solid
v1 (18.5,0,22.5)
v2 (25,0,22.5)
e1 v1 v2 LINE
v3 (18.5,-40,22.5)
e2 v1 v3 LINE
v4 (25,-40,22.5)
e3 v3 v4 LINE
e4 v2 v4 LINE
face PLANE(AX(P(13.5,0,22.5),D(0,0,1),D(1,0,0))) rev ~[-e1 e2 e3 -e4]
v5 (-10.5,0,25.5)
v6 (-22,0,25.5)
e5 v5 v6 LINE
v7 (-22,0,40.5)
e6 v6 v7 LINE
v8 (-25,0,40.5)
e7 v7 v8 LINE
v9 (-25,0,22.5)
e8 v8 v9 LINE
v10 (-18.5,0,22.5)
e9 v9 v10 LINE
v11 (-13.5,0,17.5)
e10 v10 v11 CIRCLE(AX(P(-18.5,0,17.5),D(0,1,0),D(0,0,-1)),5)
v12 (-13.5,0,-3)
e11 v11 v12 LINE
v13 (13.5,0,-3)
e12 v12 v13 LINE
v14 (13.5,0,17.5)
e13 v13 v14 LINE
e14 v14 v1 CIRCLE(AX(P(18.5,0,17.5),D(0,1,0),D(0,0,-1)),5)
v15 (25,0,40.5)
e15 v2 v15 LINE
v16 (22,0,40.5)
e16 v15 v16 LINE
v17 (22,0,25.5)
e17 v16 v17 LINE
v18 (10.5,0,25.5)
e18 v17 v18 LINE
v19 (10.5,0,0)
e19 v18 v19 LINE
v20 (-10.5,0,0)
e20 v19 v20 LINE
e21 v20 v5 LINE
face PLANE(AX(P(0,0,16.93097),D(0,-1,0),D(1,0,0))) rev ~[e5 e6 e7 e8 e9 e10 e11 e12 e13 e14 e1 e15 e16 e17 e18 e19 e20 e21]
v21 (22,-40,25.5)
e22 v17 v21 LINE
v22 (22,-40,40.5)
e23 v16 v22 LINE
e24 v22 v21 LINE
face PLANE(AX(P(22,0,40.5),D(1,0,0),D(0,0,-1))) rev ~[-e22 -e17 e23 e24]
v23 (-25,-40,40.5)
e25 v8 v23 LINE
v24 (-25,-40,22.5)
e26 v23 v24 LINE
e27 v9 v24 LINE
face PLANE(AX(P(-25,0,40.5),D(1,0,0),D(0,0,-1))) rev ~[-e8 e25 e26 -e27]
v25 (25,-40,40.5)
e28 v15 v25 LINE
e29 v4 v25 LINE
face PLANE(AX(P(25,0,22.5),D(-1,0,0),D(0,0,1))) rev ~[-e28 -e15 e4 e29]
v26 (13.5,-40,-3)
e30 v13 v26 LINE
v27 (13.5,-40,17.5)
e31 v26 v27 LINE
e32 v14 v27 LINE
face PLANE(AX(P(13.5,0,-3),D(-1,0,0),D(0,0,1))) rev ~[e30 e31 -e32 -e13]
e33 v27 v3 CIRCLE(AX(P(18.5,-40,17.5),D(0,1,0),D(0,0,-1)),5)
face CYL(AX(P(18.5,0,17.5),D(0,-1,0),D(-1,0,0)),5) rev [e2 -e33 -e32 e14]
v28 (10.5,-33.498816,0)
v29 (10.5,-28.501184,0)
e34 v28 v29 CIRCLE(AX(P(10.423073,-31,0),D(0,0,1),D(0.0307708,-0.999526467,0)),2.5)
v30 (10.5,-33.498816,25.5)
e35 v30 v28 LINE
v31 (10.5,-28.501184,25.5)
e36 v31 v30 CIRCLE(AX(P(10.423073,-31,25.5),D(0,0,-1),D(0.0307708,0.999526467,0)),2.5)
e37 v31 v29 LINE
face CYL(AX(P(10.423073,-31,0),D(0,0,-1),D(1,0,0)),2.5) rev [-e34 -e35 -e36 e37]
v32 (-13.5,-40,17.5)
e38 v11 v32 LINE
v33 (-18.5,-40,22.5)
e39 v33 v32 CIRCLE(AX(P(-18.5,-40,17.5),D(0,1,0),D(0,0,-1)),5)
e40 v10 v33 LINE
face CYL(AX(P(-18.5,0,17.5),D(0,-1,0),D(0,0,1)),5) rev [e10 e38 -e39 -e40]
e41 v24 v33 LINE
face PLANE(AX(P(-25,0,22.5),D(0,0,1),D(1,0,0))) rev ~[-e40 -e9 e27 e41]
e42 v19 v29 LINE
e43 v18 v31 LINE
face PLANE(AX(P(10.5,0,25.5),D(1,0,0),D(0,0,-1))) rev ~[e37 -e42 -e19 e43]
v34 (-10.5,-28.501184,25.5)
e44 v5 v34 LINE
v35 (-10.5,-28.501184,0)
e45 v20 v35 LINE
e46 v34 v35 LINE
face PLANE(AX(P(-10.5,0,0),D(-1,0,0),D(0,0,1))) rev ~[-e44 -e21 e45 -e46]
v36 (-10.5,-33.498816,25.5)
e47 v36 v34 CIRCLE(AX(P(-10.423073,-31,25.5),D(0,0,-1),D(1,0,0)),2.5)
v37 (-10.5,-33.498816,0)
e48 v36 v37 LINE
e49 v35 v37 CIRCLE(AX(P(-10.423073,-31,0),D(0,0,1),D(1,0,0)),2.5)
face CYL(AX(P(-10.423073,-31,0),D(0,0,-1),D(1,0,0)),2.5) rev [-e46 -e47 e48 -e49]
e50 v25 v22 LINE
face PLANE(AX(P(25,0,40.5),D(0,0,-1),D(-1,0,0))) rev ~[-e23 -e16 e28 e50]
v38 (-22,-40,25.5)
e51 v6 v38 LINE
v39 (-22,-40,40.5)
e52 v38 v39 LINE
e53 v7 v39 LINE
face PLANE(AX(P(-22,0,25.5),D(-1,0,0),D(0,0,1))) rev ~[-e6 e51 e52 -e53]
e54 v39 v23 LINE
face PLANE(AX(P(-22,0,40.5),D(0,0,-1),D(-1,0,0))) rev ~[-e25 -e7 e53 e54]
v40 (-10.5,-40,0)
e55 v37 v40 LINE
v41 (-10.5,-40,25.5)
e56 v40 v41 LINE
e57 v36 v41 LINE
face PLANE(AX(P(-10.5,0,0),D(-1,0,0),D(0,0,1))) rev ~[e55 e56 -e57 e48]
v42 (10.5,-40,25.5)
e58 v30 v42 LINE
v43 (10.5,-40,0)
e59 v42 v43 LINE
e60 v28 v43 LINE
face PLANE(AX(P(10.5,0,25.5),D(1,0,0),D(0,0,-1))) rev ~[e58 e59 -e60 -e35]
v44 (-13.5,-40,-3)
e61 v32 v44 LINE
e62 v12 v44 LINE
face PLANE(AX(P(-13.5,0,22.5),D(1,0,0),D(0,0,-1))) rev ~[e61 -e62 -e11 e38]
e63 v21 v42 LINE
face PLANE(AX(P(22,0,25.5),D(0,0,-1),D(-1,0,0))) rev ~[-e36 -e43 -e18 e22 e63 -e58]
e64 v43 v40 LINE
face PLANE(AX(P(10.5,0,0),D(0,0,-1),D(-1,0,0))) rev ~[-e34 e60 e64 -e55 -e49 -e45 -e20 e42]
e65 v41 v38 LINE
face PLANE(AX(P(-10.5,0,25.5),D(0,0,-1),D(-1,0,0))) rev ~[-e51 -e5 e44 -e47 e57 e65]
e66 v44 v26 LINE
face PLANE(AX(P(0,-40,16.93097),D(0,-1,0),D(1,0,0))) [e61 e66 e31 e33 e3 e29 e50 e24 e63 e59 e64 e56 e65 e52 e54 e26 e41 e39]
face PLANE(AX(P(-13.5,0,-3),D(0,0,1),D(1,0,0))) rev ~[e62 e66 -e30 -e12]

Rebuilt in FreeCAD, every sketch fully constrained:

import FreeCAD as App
import Part
import Sketcher

V = App.Vector


def edges_at(feature, points):
    """Names of the edges that pass closest to the given points."""
    edges = feature.Shape.Edges
    near = lambda p: min(range(len(edges)), key=lambda i: edges[i].distToShape(Part.Vertex(*p))[0])
    return sorted({f"Edge{near(p) + 1}" for p in points})

doc = App.newDocument("Part")
params = doc.addObject("Spreadsheet::Sheet", "Params")
for row, (alias, value) in enumerate([
    ("sketch1_width", "21 mm"),
    ("sketch1_width2", "3 mm"),
    ("sketch1_height", "15 mm"),
    ("sketch1_height2", "18 mm"),
    ("sketch1_width3", "11.5 mm"),
    ("pad1_length", "40 mm"),
    ("fillet_radius", "5 mm"),
    ("sketch2_diameter", "5 mm"),
    ("pocket1_length", "27 mm"),
], start=1):
    params.set(f"A{row}", alias)
    params.set(f"B{row}", "=" + value)
    params.setAlias(f"B{row}", alias)

body = doc.addObject("PartDesign::Body", "Body")

sketch1 = body.newObject("Sketcher::SketchObject", "Sketch")
sketch1.AttachmentSupport = (doc.getObject("XZ_Plane"), [""])
sketch1.MapMode = "FlatFace"
sketch1.addGeometry([
    Part.LineSegment(V(10.5, 0, 0), V(-10.5, 0, 0)),
    Part.LineSegment(V(-10.5, 0, 0), V(-10.5, 25.5, 0)),
    Part.LineSegment(V(-10.5, 25.5, 0), V(-22, 25.5, 0)),
    Part.LineSegment(V(-22, 25.5, 0), V(-22, 40.5, 0)),
    Part.LineSegment(V(-22, 40.5, 0), V(-25, 40.5, 0)),
    Part.LineSegment(V(-25, 40.5, 0), V(-25, 22.5, 0)),
    Part.LineSegment(V(-25, 22.5, 0), V(-13.5, 22.5, 0)),
    Part.LineSegment(V(-13.5, 22.5, 0), V(-13.5, -3, 0)),
    Part.LineSegment(V(-13.5, -3, 0), V(13.5, -3, 0)),
    Part.LineSegment(V(13.5, -3, 0), V(13.5, 22.5, 0)),
    Part.LineSegment(V(13.5, 22.5, 0), V(25, 22.5, 0)),
    Part.LineSegment(V(25, 22.5, 0), V(25, 40.5, 0)),
    Part.LineSegment(V(25, 40.5, 0), V(22, 40.5, 0)),
    Part.LineSegment(V(22, 40.5, 0), V(22, 25.5, 0)),
    Part.LineSegment(V(22, 25.5, 0), V(10.5, 25.5, 0)),
    Part.LineSegment(V(10.5, 25.5, 0), V(10.5, 0, 0)),
], False)
sketch1.addConstraint([
    Sketcher.Constraint("Coincident", 0, 2, 1, 1),
    Sketcher.Constraint("Coincident", 1, 2, 2, 1),
    Sketcher.Constraint("Coincident", 2, 2, 3, 1),
    Sketcher.Constraint("Coincident", 3, 2, 4, 1),
    Sketcher.Constraint("Coincident", 4, 2, 5, 1),
    Sketcher.Constraint("Coincident", 5, 2, 6, 1),
    Sketcher.Constraint("Coincident", 6, 2, 7, 1),
    Sketcher.Constraint("Coincident", 7, 2, 8, 1),
    Sketcher.Constraint("Coincident", 8, 2, 9, 1),
    Sketcher.Constraint("Coincident", 9, 2, 10, 1),
    Sketcher.Constraint("Coincident", 10, 2, 11, 1),
    Sketcher.Constraint("Coincident", 11, 2, 12, 1),
    Sketcher.Constraint("Coincident", 12, 2, 13, 1),
    Sketcher.Constraint("Coincident", 13, 2, 14, 1),
    Sketcher.Constraint("Coincident", 14, 2, 15, 1),
    Sketcher.Constraint("Coincident", 15, 2, 0, 1),
    Sketcher.Constraint("Horizontal", 0),
    Sketcher.Constraint("Vertical", 1),
    Sketcher.Constraint("Horizontal", 2),
    Sketcher.Constraint("Vertical", 3),
    Sketcher.Constraint("Horizontal", 4),
    Sketcher.Constraint("Vertical", 5),
    Sketcher.Constraint("Horizontal", 6),
    Sketcher.Constraint("Vertical", 7),
    Sketcher.Constraint("Horizontal", 8),
    Sketcher.Constraint("Vertical", 9),
    Sketcher.Constraint("Horizontal", 10),
    Sketcher.Constraint("Vertical", 11),
    Sketcher.Constraint("Horizontal", 12),
    Sketcher.Constraint("Vertical", 13),
    Sketcher.Constraint("Horizontal", 14),
    Sketcher.Constraint("Vertical", 15),
    Sketcher.Constraint("Symmetric", 0, 2, 15, 2, -1, 1),
    Sketcher.Constraint("Symmetric", 6, 2, 9, 2, -2),
    Sketcher.Constraint("Symmetric", 4, 2, 11, 2, -2),
    Sketcher.Constraint("Symmetric", 2, 2, 13, 2, -2),
    Sketcher.Constraint("Equal", 2, 6),
    Sketcher.Constraint("Equal", 1, 7),
    Sketcher.Constraint("DistanceX", 0, 2, 0, 1, 21.0),
    Sketcher.Constraint("DistanceX", 4, 2, 4, 1, 3.0),
    Sketcher.Constraint("DistanceY", 3, 1, 3, 2, 15.0),
    Sketcher.Constraint("DistanceY", 5, 2, 5, 1, 18.0),
    Sketcher.Constraint("DistanceX", 2, 2, 2, 1, 11.5),
    Sketcher.Constraint("DistanceY", 1, 1, 1, 2, 25.5),
])
sketch1.setExpression("Constraints[38]", "Params.sketch1_width")
sketch1.setExpression("Constraints[39]", "Params.sketch1_width2")
sketch1.setExpression("Constraints[40]", "Params.sketch1_height")
sketch1.setExpression("Constraints[41]", "Params.sketch1_height2")
sketch1.setExpression("Constraints[42]", "Params.sketch1_width3")
pad1 = body.newObject("PartDesign::Pad", "Pad")
pad1.Profile = sketch1
pad1.setExpression("Length", "Params.pad1_length")
doc.recompute()

fillet = body.newObject("PartDesign::Fillet", "Fillet")
fillet.Base = (pad1, edges_at(pad1, [(-13.5, -20, 22.5), (13.5, -20, 22.5)]))
fillet.setExpression("Radius", "Params.fillet_radius")

sketch2 = body.newObject("Sketcher::SketchObject", "Sketch001")
sketch2.AttachmentSupport = (doc.getObject("XY_Plane"), [""])
sketch2.MapMode = "FlatFace"
sketch2.addGeometry([
    Part.Circle(V(-10.423073, -31, 0), V(0, 0, 1), 2.5),
    Part.Circle(V(10.423073, -31, 0), V(0, 0, 1), 2.5),
], False)
sketch2.addConstraint([
    Sketcher.Constraint("Equal", 0, 1),
    Sketcher.Constraint("Symmetric", 0, 3, 1, 3, -2),
    Sketcher.Constraint("Diameter", 0, 5.0),
    Sketcher.Constraint("DistanceY", 0, 3, -1, 1, 31.0),
    Sketcher.Constraint("DistanceX", 0, 3, -1, 1, 10.423073),
])
sketch2.setExpression("Constraints[2]", "Params.sketch2_diameter")
pocket1 = body.newObject("PartDesign::Pocket", "Pocket")
pocket1.Profile = sketch2
pocket1.setExpression("Length", "Params.pocket1_length")
pocket1.Reversed = True

doc.recompute()
